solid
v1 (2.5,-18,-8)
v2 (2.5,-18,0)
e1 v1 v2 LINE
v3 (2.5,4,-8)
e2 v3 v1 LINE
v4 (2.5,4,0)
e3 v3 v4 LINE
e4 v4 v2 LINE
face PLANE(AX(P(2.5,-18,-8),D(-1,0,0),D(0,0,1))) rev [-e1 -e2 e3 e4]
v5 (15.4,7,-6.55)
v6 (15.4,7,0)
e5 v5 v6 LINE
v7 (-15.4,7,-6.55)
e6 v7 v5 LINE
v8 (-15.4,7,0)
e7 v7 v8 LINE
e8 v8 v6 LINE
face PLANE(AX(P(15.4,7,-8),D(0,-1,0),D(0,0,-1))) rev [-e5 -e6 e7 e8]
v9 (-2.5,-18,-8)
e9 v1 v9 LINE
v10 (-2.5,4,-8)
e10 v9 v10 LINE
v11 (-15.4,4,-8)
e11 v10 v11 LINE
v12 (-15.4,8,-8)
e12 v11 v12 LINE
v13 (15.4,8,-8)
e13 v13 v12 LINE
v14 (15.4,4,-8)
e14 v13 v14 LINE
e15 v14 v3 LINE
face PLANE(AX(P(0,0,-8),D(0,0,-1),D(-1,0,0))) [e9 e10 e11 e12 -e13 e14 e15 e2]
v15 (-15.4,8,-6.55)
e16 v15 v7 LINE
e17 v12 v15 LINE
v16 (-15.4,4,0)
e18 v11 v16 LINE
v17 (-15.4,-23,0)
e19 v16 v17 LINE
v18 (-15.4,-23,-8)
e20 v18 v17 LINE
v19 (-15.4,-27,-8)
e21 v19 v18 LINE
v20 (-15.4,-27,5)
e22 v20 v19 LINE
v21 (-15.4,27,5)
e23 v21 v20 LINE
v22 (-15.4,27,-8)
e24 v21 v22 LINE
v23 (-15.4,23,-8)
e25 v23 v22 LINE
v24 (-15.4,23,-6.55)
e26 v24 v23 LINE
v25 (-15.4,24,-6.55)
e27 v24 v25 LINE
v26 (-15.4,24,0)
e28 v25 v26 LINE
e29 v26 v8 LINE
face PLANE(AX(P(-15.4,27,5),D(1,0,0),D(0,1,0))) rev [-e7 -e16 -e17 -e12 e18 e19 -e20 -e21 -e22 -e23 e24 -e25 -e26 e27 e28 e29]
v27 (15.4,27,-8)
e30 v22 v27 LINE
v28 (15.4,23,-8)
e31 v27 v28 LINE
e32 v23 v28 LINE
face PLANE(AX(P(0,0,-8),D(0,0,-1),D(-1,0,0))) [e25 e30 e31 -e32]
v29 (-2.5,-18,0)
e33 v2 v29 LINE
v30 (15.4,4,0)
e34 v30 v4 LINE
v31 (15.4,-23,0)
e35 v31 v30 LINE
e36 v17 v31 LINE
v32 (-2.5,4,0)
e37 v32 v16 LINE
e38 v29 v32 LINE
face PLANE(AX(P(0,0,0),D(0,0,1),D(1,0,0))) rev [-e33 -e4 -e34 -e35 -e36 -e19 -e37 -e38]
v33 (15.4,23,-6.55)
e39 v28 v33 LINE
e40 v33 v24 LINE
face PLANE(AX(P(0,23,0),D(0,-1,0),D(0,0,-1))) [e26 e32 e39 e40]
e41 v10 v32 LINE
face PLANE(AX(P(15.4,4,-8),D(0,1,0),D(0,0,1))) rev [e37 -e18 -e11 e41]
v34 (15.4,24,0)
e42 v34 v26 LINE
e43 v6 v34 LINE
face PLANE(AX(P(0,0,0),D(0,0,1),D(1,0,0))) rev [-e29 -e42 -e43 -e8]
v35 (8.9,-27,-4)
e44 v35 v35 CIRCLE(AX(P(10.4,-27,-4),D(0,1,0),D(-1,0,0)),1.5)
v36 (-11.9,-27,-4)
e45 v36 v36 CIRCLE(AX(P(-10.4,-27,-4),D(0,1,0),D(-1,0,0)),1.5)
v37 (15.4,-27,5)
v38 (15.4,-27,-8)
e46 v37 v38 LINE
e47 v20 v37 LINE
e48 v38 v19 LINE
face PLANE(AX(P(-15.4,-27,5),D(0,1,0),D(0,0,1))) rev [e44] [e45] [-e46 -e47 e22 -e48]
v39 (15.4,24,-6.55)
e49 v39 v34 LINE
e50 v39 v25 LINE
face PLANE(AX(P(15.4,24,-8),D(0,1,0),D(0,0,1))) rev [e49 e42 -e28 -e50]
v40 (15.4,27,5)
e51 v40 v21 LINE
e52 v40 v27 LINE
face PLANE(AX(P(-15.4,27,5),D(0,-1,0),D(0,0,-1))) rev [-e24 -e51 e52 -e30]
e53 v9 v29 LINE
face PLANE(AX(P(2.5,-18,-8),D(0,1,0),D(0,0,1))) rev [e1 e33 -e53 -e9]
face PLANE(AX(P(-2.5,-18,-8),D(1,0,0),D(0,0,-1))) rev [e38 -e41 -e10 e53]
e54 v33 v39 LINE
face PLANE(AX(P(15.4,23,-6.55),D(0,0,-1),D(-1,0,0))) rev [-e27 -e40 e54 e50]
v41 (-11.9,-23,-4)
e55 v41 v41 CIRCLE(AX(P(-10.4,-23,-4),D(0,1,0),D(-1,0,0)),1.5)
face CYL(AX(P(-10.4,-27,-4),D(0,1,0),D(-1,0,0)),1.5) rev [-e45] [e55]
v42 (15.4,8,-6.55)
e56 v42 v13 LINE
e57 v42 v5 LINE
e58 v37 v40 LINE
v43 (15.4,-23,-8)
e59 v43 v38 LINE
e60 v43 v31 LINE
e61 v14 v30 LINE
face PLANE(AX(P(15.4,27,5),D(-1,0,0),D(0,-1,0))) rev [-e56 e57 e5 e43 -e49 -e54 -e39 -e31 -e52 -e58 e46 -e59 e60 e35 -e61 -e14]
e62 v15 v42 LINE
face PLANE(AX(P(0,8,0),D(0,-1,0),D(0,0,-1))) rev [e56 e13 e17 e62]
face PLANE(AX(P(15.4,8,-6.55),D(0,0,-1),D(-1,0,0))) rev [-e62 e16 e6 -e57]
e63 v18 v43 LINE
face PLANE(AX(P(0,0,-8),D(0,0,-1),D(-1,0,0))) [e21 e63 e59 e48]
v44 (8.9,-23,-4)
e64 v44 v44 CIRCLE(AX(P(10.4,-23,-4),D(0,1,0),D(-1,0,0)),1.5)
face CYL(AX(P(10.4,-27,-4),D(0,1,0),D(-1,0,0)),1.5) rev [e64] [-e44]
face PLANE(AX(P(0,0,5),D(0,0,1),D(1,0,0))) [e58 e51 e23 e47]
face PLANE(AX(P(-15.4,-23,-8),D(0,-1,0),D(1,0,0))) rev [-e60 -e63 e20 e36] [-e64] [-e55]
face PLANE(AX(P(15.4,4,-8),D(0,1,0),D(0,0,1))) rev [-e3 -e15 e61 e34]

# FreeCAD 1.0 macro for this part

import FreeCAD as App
import Part
import Sketcher
from FreeCAD import Vector


def add_polygon(sketch, points):
    """Adds a closed chain of lines whose ends are joined by coincident constraints."""
    first, n = sketch.GeometryCount, len(points)
    for a, b in zip(points, points[1:] + points[:1]):
        sketch.addGeometry(Part.LineSegment(App.Vector(*a, 0), App.Vector(*b, 0)), False)
    for i in range(n):
        sketch.addConstraint(Sketcher.Constraint("Coincident", first + i, 2, first + (i + 1) % n, 1))

doc = App.newDocument("Part")
body = doc.addObject("PartDesign::Body", "Body")

# Sketch on XY plane
sketch1 = body.newObject("Sketcher::SketchObject", "Sketch")
sketch1.AttachmentSupport = (doc.getObject("XY_Plane"), [""])
sketch1.MapMode = "FlatFace"
add_polygon(sketch1, [(-15.4, 27), (-15.4, -27), (15.4, -27), (15.4, 27)])  # lines 0-3
sketch1.addConstraint([
    Sketcher.Constraint("Vertical", 0),
    Sketcher.Constraint("Horizontal", 1),
    Sketcher.Constraint("Vertical", 2),
    Sketcher.Constraint("Horizontal", 3),
    Sketcher.Constraint("Symmetric", 0, 2, 2, 2, -1, 1),
    Sketcher.Constraint("DistanceY", 0, 2, 0, 1, 54.0),
    Sketcher.Constraint("DistanceX", 1, 1, 1, 2, 30.8),
])
pad1 = body.newObject("PartDesign::Pad", "Pad")
pad1.Profile = sketch1
pad1.Length = 5

# Sketch on XY plane
sketch2 = body.newObject("Sketcher::SketchObject", "Sketch001")
sketch2.AttachmentSupport = (doc.getObject("XY_Plane"), [""])
sketch2.MapMode = "FlatFace"
add_polygon(sketch2, [(15.4, -23), (15.4, -27), (-15.4, -27), (-15.4, -23)])  # lines 0-3
sketch2.addConstraint([
    Sketcher.Constraint("Vertical", 0),
    Sketcher.Constraint("Horizontal", 1),
    Sketcher.Constraint("Vertical", 2),
    Sketcher.Constraint("Horizontal", 3),
    Sketcher.Constraint("DistanceY", 0, 2, 0, 1, 4.0),
    Sketcher.Constraint("DistanceX", 1, 2, 1, 1, 30.8),
    Sketcher.Constraint("DistanceY", 0, 2, -1, 1, 27.0),
    Sketcher.Constraint("DistanceX", -1, 1, 0, 2, 15.4),
])
pad2 = body.newObject("PartDesign::Pad", "Pad001")
pad2.Profile = sketch2
pad2.Length = 8
pad2.Reversed = True

# Sketch on XZ plane
sketch3 = body.newObject("Sketcher::SketchObject", "Sketch002")
sketch3.AttachmentSupport = (doc.getObject("XZ_Plane"), [""])
sketch3.MapMode = "FlatFace"
sketch3.AttachmentOffset = App.Placement(Vector(0, 0, 23), App.Rotation())
sketch3.addGeometry([
    Part.Circle(Vector(10.4, -4, 0), Vector(0, 0, 1), 1.5),
    Part.Circle(Vector(-10.4, -4, 0), Vector(0, 0, 1), 1.5),
], False)
sketch3.addConstraint([
    Sketcher.Constraint("Equal", 0, 1),
    Sketcher.Constraint("Symmetric", 0, 3, 1, 3, -2),
    Sketcher.Constraint("Diameter", 0, 3.0),
    Sketcher.Constraint("DistanceY", 0, 3, -1, 1, 4.0),
    Sketcher.Constraint("DistanceX", -1, 1, 0, 3, 10.4),
])
pocket1 = body.newObject("PartDesign::Pocket", "Pocket")
pocket1.Profile = sketch3
pocket1.Type = "ThroughAll"
pocket1.Reversed = True

# Sketch on XY plane
sketch4 = body.newObject("Sketcher::SketchObject", "Sketch003")
sketch4.AttachmentSupport = (doc.getObject("XY_Plane"), [""])
sketch4.MapMode = "FlatFace"
add_polygon(sketch4, [(15.4, 27), (15.4, 24), (-15.4, 24), (-15.4, 27)])  # lines 0-3
add_polygon(sketch4, [(15.4, 7), (15.4, 4), (-15.4, 4), (-15.4, 7)])  # lines 4-7
sketch4.addConstraint([
    Sketcher.Constraint("Vertical", 0),
    Sketcher.Constraint("Horizontal", 1),
    Sketcher.Constraint("Vertical", 2),
    Sketcher.Constraint("Horizontal", 3),
    Sketcher.Constraint("Vertical", 4),
    Sketcher.Constraint("Horizontal", 5),
    Sketcher.Constraint("Vertical", 6),
    Sketcher.Constraint("Horizontal", 7),
    Sketcher.Constraint("Vertical", 3, 2, 4, 2),
    Sketcher.Constraint("Vertical", 2, 2, 5, 2),
    Sketcher.Constraint("Equal", 2, 4),
    Sketcher.Constraint("DistanceY", 0, 2, 0, 1, 3.0),
    Sketcher.Constraint("DistanceX", 1, 2, 1, 1, 30.8),
    Sketcher.Constraint("DistanceY", -1, 1, 0, 2, 24.0),
    Sketcher.Constraint("DistanceY", -1, 1, 4, 2, 4.0),
    Sketcher.Constraint("DistanceX", -1, 1, 0, 2, 15.4),
])
pad3 = body.newObject("PartDesign::Pad", "Pad002")
pad3.Profile = sketch4
pad3.Length = 8
pad3.Reversed = True

# Sketch on XZ plane
sketch5 = body.newObject("Sketcher::SketchObject", "Sketch004")
sketch5.AttachmentSupport = (doc.getObject("XZ_Plane"), [""])
sketch5.MapMode = "FlatFace"
sketch5.AttachmentOffset = App.Placement(Vector(0, 0, -7), App.Rotation())
add_polygon(sketch5, [(-15.4, -8), (-15.4, -6.55), (15.4, -6.55), (15.4, -8)])  # lines 0-3
sketch5.addConstraint([
    Sketcher.Constraint("Vertical", 0),
    Sketcher.Constraint("Horizontal", 1),
    Sketcher.Constraint("Vertical", 2),
    Sketcher.Constraint("Horizontal", 3),
    Sketcher.Constraint("DistanceX", 1, 1, 1, 2, 30.8),
    Sketcher.Constraint("DistanceY", 2, 2, -1, 1, 8.0),
    Sketcher.Constraint("DistanceY", 0, 1, 0, 2, 1.45),
    Sketcher.Constraint("DistanceX", 0, 2, -1, 1, 15.4),
])
pad4 = body.newObject("PartDesign::Pad", "Pad003")
pad4.Profile = sketch5
pad4.Length = 1
pad4.Reversed = True

# Sketch on XZ plane
sketch6 = body.newObject("Sketcher::SketchObject", "Sketch005")
sketch6.AttachmentSupport = (doc.getObject("XZ_Plane"), [""])
sketch6.MapMode = "FlatFace"
sketch6.AttachmentOffset = App.Placement(Vector(0, 0, -24), App.Rotation())
add_polygon(sketch6, [(-15.4, -6.55), (-15.4, -8), (15.4, -8), (15.4, -6.55)])  # lines 0-3
sketch6.addConstraint([
    Sketcher.Constraint("Vertical", 0),
    Sketcher.Constraint("Horizontal", 1),
    Sketcher.Constraint("Vertical", 2),
    Sketcher.Constraint("Horizontal", 3),
    Sketcher.Constraint("DistanceX", 1, 1, 1, 2, 30.8),
    Sketcher.Constraint("DistanceY", 0, 2, -1, 1, 8.0),
    Sketcher.Constraint("DistanceY", 0, 2, 0, 1, 1.45),
    Sketcher.Constraint("DistanceX", 0, 2, -1, 1, 15.4),
])
pad5 = body.newObject("PartDesign::Pad", "Pad004")
pad5.Profile = sketch6
pad5.Length = 1

# Sketch on XY plane
sketch7 = body.newObject("Sketcher::SketchObject", "Sketch006")
sketch7.AttachmentSupport = (doc.getObject("XY_Plane"), [""])
sketch7.MapMode = "FlatFace"
add_polygon(sketch7, [(2.5, 4), (2.5, -18), (-2.5, -18), (-2.5, 4)])  # lines 0-3
sketch7.addConstraint([
    Sketcher.Constraint("Vertical", 0),
    Sketcher.Constraint("Horizontal", 1),
    Sketcher.Constraint("Vertical", 2),
    Sketcher.Constraint("Horizontal", 3),
    Sketcher.Constraint("DistanceX", 1, 2, 1, 1, 5.0),
    Sketcher.Constraint("DistanceY", 0, 2, 0, 1, 22.0),
    Sketcher.Constraint("DistanceY", 0, 2, -1, 1, 18.0),
    Sketcher.Constraint("DistanceX", -1, 1, 0, 2, 2.5),
])
pad6 = body.newObject("PartDesign::Pad", "Pad005")
pad6.Profile = sketch7
pad6.Length = 8
pad6.Reversed = True

doc.recompute()
